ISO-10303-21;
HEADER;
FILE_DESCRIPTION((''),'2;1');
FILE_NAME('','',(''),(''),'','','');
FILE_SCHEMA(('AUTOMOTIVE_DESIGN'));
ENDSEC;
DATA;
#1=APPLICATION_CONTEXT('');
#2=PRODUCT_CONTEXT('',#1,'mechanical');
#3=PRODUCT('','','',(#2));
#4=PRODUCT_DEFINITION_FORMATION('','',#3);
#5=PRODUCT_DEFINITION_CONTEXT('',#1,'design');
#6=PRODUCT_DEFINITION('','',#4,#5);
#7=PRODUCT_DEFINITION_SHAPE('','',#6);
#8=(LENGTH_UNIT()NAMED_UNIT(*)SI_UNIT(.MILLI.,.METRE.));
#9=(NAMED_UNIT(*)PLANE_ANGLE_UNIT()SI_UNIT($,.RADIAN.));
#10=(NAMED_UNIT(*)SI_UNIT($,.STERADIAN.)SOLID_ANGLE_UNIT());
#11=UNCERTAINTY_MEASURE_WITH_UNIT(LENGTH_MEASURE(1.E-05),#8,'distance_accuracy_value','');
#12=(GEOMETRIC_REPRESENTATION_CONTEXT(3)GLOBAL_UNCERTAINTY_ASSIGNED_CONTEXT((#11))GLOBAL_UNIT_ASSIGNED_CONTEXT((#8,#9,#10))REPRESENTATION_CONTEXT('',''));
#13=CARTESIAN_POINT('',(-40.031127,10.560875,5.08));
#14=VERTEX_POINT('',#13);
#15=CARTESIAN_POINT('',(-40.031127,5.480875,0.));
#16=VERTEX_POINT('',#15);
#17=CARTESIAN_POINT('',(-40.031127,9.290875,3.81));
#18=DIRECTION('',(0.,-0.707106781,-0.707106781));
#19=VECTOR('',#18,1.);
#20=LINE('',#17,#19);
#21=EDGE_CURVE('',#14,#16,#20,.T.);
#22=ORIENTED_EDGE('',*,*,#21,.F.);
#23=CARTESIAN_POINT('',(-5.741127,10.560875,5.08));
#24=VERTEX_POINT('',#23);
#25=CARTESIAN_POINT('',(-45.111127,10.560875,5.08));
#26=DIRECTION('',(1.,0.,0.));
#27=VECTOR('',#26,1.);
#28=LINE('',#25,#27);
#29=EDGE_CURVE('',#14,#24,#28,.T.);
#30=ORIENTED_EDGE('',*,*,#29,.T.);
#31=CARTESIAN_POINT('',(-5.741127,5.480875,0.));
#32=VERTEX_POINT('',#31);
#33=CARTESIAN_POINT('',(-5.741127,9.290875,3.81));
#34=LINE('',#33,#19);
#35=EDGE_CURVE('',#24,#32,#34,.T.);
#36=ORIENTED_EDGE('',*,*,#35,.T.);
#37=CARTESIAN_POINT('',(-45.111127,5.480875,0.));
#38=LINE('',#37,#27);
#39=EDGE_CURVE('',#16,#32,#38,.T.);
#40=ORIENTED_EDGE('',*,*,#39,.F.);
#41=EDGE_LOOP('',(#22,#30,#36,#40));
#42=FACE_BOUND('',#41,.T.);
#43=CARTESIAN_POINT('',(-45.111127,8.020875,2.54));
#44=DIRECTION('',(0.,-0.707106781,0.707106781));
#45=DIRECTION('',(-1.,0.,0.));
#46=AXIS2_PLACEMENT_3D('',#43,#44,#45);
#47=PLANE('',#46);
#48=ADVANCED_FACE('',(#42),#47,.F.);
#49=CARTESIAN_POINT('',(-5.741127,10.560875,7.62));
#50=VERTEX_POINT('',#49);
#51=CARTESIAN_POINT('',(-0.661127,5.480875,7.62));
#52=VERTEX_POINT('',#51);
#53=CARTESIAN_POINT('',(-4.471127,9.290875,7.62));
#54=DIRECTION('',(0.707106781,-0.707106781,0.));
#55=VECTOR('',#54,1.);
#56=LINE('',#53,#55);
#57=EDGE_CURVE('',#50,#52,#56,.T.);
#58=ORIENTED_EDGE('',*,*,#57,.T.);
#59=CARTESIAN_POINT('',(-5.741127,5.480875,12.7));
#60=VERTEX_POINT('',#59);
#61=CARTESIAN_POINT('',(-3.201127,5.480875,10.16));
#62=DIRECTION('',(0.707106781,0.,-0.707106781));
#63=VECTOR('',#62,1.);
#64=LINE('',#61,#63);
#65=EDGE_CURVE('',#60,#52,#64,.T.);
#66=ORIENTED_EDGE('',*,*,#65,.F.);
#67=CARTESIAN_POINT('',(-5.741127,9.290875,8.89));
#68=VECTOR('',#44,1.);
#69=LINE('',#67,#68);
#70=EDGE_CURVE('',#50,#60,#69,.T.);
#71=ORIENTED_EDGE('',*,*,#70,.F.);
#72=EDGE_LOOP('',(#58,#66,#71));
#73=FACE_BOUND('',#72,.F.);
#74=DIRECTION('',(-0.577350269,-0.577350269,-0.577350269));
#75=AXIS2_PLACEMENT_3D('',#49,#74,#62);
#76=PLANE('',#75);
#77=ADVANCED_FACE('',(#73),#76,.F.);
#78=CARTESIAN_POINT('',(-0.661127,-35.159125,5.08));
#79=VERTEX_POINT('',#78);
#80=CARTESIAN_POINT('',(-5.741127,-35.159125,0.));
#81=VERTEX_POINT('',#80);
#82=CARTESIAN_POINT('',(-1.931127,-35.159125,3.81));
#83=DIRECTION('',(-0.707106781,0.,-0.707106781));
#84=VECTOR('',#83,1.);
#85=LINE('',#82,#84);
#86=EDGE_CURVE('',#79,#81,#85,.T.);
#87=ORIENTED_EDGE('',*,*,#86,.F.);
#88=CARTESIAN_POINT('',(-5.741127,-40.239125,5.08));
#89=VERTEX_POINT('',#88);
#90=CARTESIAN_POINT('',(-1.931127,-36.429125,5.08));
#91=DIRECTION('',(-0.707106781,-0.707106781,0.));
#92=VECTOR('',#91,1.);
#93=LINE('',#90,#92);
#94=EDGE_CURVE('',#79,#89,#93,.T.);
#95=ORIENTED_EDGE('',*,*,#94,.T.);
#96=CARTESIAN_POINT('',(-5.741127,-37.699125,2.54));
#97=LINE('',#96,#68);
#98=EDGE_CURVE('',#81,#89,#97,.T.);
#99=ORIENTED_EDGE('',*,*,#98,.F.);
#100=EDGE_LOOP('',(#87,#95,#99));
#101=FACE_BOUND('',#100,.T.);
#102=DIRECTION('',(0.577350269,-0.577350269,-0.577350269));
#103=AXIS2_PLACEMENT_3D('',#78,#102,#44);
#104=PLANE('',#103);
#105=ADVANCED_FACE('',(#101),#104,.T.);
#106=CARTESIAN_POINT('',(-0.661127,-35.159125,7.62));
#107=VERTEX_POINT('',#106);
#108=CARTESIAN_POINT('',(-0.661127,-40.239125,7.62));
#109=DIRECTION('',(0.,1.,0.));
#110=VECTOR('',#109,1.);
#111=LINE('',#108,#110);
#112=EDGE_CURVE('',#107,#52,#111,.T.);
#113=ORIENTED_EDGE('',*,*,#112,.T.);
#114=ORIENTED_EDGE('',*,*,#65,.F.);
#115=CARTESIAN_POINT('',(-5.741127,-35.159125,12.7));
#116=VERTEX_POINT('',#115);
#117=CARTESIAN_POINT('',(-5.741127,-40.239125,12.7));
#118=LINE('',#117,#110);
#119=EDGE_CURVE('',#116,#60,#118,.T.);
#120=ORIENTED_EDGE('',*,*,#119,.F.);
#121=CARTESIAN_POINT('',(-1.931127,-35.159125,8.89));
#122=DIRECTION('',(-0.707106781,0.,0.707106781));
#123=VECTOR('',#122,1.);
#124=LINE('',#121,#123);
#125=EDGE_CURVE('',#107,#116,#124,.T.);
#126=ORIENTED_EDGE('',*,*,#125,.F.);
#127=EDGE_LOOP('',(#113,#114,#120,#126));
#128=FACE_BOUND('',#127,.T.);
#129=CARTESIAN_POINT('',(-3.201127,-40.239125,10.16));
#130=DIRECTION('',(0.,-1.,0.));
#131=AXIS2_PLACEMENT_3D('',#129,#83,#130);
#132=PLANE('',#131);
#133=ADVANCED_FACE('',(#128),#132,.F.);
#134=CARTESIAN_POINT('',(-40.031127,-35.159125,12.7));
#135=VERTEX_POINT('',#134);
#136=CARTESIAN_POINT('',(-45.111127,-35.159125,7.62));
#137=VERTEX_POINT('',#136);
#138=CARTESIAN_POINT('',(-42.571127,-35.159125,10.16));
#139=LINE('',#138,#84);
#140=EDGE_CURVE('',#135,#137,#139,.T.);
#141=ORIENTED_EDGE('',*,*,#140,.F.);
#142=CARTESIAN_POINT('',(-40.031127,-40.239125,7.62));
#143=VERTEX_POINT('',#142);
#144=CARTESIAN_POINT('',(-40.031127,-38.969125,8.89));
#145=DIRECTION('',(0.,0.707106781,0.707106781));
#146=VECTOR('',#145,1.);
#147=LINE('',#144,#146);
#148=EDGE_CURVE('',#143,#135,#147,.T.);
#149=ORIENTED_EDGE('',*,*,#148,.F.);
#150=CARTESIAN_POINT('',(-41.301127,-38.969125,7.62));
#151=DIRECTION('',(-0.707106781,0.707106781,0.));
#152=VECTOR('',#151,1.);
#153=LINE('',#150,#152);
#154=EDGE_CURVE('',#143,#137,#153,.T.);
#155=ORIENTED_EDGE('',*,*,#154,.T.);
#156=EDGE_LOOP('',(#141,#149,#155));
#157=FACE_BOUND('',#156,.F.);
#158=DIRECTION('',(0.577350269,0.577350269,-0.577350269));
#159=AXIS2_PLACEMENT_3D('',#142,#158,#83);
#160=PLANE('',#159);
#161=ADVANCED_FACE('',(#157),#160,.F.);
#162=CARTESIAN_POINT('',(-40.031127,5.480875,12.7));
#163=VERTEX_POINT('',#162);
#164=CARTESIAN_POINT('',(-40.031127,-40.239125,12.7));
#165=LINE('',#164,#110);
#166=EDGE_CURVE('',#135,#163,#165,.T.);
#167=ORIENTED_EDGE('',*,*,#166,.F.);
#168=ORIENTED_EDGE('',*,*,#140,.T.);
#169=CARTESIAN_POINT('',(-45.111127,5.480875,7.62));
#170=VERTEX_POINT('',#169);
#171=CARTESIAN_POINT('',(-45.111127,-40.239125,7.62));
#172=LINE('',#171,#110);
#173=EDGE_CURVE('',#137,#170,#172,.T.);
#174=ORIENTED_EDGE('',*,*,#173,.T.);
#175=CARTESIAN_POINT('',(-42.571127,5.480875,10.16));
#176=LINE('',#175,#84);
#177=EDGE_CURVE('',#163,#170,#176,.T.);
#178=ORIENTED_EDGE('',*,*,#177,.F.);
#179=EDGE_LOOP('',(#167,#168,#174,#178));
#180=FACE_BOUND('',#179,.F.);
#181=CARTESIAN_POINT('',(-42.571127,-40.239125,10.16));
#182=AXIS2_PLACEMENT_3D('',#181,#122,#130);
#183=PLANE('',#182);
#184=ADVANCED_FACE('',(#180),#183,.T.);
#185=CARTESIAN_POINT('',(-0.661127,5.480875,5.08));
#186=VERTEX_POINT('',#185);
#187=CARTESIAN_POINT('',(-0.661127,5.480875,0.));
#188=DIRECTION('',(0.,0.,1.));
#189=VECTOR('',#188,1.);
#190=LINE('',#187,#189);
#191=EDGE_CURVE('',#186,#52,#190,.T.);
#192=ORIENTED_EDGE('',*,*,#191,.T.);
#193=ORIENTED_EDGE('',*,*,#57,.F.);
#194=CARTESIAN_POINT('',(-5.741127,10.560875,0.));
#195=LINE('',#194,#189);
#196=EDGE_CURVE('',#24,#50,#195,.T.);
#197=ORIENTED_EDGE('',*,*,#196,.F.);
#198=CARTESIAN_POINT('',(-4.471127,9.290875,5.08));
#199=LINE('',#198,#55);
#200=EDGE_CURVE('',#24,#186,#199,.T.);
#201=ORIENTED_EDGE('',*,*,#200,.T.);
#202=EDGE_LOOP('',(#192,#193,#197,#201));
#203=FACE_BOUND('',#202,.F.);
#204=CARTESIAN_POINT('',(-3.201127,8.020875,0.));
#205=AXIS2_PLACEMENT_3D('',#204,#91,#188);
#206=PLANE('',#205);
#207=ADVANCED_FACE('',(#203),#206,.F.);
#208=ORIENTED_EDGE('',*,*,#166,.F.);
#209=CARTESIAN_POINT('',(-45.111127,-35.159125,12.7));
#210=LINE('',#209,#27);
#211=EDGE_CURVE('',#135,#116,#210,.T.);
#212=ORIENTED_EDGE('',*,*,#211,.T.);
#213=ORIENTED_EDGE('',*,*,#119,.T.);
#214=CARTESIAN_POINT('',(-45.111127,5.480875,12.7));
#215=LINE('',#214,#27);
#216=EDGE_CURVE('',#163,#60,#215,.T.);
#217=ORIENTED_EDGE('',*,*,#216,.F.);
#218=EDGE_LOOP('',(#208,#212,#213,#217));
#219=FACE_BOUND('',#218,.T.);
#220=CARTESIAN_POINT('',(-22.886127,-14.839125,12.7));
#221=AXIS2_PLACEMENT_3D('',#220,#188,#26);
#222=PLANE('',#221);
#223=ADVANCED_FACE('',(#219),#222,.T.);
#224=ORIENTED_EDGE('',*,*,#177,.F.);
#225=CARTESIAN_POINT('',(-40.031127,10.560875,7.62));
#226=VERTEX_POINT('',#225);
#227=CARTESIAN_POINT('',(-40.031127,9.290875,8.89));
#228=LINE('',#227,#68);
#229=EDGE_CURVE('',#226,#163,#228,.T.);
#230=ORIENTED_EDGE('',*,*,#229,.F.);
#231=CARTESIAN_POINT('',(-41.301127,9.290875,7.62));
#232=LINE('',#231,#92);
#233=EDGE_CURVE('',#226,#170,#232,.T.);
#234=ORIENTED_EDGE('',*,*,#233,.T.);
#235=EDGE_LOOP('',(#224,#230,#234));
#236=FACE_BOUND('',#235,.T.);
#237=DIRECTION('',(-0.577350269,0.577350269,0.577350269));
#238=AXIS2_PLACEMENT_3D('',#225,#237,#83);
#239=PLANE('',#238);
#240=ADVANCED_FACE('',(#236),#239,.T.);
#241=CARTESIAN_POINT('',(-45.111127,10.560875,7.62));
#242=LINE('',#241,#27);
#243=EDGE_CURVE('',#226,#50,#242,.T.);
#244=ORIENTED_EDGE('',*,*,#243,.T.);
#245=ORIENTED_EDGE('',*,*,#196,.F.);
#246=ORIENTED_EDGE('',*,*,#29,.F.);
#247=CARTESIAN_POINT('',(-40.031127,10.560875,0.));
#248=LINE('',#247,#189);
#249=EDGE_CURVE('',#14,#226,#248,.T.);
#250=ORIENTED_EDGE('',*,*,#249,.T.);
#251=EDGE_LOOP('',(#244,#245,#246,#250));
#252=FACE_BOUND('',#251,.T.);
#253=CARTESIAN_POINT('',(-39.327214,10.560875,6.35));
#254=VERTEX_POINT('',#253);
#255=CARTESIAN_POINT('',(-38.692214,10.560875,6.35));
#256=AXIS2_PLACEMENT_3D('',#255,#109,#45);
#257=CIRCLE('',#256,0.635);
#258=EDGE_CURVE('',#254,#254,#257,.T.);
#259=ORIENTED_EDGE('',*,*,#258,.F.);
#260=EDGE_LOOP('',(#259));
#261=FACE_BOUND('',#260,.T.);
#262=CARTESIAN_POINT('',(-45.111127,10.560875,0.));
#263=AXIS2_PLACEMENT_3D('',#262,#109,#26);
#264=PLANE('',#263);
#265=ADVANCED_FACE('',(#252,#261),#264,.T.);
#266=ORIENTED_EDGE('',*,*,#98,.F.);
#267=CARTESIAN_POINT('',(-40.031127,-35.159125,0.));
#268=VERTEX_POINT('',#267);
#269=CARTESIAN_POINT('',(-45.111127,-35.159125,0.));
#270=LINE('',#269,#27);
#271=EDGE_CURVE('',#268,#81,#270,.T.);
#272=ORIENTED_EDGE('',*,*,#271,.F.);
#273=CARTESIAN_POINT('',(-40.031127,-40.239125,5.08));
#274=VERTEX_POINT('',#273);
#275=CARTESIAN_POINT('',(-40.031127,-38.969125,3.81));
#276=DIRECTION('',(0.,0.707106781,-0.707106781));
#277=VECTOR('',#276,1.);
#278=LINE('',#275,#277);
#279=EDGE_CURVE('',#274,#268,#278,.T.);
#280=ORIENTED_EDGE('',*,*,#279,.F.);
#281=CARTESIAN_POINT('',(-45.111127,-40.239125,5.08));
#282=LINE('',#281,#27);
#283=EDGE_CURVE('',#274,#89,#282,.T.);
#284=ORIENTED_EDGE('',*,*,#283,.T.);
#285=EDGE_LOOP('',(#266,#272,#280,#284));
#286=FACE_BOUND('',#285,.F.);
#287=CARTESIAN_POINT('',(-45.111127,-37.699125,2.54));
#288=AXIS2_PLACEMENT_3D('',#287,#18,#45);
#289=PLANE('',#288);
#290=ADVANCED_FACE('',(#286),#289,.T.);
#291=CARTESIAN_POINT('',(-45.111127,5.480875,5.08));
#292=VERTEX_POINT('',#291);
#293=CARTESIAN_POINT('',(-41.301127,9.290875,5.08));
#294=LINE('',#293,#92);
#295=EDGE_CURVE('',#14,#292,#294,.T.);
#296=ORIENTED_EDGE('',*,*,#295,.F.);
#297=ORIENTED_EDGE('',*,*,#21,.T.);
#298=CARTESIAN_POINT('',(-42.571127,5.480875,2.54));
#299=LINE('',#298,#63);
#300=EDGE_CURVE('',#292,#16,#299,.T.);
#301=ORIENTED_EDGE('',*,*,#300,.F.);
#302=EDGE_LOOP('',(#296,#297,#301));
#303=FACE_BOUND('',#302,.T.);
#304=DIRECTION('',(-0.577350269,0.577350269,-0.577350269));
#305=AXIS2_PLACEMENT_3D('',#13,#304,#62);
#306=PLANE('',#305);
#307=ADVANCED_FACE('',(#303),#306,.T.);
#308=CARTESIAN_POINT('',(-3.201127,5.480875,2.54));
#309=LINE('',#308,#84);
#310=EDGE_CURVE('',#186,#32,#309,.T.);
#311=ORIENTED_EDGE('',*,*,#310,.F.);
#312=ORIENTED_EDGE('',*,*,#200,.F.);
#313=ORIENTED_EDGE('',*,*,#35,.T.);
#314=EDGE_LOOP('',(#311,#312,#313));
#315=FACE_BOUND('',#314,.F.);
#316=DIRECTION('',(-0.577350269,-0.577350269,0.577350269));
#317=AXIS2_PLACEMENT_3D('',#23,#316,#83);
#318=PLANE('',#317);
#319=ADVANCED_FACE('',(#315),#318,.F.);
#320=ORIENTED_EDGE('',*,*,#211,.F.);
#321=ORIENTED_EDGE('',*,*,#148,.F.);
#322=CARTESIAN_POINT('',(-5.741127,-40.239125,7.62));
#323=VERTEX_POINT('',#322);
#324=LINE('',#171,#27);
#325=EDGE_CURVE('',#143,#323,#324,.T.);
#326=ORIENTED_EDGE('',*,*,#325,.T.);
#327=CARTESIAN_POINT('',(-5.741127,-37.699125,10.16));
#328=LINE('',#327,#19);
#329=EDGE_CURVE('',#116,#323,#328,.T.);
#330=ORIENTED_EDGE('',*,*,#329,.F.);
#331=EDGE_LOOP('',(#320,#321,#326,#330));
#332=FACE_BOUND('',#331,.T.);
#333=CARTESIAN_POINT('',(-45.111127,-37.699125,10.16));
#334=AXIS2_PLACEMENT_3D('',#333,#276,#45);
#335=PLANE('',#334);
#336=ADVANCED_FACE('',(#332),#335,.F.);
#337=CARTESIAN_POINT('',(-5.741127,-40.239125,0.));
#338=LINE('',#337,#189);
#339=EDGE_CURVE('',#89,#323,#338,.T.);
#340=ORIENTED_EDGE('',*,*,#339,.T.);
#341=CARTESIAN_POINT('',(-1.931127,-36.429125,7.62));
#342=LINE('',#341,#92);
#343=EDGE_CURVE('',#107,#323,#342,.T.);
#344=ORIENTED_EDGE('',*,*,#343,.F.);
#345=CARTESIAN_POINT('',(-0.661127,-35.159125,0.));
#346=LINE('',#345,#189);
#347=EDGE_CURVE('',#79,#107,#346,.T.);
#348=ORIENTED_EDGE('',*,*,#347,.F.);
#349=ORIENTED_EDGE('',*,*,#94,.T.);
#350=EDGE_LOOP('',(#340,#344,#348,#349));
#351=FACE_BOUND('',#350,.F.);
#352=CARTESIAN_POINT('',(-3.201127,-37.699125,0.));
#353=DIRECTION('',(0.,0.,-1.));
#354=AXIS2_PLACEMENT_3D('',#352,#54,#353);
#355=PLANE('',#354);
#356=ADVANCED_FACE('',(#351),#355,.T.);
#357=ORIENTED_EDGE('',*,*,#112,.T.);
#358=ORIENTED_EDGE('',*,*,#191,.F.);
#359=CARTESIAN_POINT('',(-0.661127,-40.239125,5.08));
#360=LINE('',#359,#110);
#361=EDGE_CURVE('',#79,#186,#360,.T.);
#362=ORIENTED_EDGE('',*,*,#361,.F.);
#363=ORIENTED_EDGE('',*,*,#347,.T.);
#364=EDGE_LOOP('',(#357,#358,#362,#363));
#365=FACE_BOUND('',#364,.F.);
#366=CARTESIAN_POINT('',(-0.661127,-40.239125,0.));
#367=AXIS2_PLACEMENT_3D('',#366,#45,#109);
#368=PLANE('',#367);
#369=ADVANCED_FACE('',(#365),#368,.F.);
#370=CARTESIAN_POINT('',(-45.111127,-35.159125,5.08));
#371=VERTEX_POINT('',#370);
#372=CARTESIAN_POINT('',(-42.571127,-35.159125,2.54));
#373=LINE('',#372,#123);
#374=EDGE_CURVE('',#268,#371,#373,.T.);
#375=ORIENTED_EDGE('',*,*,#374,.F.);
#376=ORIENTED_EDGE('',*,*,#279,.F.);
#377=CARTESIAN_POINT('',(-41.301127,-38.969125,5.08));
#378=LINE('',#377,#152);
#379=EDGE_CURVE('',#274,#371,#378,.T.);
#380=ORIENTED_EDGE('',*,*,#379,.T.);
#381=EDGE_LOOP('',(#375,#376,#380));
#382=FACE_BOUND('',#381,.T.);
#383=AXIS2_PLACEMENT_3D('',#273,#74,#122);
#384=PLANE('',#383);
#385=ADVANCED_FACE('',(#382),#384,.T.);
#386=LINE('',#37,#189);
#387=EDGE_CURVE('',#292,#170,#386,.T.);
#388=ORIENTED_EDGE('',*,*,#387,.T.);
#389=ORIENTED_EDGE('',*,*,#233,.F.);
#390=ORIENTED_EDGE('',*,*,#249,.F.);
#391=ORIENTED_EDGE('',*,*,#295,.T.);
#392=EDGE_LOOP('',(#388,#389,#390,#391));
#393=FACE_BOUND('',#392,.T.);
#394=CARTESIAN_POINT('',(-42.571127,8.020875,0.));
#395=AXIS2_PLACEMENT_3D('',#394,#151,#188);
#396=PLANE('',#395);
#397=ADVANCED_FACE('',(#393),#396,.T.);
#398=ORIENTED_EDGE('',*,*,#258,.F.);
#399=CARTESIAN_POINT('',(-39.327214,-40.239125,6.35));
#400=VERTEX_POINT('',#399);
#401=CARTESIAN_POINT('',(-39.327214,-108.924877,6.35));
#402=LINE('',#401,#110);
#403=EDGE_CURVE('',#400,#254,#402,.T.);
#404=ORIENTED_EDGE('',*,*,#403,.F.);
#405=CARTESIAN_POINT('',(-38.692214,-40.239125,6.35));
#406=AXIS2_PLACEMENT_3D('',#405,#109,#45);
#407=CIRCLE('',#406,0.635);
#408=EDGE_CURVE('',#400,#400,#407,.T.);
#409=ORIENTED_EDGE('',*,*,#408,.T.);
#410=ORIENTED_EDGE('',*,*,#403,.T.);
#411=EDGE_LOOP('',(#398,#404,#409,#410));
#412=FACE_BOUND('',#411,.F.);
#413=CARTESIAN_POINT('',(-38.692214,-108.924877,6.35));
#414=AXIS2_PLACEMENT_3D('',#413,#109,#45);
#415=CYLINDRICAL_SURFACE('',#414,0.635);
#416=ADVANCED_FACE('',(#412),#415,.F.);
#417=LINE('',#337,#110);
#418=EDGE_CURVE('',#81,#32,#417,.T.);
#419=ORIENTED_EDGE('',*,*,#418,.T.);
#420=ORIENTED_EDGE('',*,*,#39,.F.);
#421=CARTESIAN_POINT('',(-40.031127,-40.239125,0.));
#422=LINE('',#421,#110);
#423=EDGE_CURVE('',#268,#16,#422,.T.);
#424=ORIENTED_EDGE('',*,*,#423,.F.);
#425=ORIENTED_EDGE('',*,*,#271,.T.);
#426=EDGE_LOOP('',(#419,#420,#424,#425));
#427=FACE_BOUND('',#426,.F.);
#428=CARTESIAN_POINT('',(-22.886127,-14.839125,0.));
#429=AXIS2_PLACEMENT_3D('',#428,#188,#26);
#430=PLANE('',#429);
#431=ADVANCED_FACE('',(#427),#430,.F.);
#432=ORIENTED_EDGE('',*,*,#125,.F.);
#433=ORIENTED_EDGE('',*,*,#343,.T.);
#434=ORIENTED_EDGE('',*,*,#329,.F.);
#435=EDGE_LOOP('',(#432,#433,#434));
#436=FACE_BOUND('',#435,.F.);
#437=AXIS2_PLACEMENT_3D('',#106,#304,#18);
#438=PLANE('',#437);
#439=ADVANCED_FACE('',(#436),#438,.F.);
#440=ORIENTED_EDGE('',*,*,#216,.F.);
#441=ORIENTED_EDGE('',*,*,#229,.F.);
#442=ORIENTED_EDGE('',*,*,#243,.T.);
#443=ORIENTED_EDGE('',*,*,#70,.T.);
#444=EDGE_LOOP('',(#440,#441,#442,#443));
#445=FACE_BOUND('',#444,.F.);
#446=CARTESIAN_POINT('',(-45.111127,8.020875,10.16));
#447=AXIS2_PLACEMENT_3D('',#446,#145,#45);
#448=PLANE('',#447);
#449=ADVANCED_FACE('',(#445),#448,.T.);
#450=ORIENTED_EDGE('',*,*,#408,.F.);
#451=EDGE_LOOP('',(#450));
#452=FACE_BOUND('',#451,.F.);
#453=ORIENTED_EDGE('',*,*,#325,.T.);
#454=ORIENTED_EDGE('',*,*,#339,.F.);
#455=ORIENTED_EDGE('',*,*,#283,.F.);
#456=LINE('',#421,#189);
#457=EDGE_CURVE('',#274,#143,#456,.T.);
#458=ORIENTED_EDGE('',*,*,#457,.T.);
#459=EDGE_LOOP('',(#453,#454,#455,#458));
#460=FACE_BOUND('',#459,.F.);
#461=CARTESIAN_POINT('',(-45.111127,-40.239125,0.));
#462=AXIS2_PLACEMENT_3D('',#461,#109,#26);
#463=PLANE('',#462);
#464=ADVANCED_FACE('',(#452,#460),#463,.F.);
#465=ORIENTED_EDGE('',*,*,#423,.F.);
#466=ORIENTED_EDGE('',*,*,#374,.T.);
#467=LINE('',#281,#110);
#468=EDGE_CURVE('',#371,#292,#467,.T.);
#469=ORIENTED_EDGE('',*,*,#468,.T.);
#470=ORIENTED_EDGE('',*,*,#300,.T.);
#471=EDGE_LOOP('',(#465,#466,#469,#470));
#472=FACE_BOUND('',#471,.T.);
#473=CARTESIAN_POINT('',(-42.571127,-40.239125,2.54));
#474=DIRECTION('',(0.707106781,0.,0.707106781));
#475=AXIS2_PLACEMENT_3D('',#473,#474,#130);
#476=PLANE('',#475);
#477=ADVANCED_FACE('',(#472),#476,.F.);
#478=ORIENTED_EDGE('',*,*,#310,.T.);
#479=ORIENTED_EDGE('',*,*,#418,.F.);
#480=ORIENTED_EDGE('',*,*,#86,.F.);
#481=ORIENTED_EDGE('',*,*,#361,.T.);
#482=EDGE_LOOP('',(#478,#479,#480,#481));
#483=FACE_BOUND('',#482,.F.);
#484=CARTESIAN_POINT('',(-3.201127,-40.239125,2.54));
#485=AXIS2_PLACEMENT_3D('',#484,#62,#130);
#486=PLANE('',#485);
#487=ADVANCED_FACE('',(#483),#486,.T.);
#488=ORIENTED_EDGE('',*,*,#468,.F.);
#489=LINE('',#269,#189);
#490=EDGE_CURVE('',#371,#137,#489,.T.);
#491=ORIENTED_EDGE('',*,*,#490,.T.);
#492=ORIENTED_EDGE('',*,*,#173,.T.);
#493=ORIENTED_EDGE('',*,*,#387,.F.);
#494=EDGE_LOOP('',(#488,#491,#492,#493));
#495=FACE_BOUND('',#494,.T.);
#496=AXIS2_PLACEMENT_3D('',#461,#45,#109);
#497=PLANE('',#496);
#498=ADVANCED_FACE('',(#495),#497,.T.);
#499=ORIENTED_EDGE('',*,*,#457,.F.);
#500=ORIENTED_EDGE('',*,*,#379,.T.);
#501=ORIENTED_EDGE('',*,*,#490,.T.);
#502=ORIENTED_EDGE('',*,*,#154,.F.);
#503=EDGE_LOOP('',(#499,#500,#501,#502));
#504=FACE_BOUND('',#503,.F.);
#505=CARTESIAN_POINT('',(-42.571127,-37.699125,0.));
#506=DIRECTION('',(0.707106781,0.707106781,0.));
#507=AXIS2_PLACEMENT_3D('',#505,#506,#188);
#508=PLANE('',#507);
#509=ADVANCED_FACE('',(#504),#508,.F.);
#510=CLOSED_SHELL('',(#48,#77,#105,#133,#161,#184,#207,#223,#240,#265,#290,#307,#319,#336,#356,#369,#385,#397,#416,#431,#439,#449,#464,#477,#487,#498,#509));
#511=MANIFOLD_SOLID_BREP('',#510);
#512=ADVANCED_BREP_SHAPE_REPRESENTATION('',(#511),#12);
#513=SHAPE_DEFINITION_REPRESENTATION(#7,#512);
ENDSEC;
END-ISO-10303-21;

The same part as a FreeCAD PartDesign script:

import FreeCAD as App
import Part
import Sketcher
Q = App.Units.Quantity

doc = App.newDocument("Part")
body = doc.addObject("PartDesign::Body", "Body")

sketch1 = body.newObject("Sketcher::SketchObject", "Sketch")
sketch1.AttachmentSupport = (doc.getObject("XY_Plane"), [""])
sketch1.MapMode = "FlatFace"
sketch1.addGeometry([
    Part.LineSegment(App.Vector(-45.111127, 10.560875, 0), App.Vector(-45.111127, -40.239125, 0)),
    Part.LineSegment(App.Vector(-45.111127, -40.239125, 0), App.Vector(-0.661127, -40.239125, 0)),
    Part.LineSegment(App.Vector(-0.661127, -40.239125, 0), App.Vector(-0.661127, 10.560875, 0)),
    Part.LineSegment(App.Vector(-0.661127, 10.560875, 0), App.Vector(-45.111127, 10.560875, 0)),
], False)
sketch1.addConstraint([
    Sketcher.Constraint("Coincident", 0, 2, 1, 1),
    Sketcher.Constraint("Coincident", 1, 2, 2, 1),
    Sketcher.Constraint("Coincident", 2, 2, 3, 1),
    Sketcher.Constraint("Coincident", 3, 2, 0, 1),
    Sketcher.Constraint("Vertical", 0),
    Sketcher.Constraint("Horizontal", 1),
    Sketcher.Constraint("Vertical", 2),
    Sketcher.Constraint("Horizontal", 3),
    Sketcher.Constraint("DistanceY", 0, 2, 0, 1, Q("2 in")),
    Sketcher.Constraint("DistanceX", 1, 1, 1, 2, Q("1.75 in")),
    Sketcher.Constraint("DistanceX", 0, 2, -1, 1, Q("45.111127 mm")),
    Sketcher.Constraint("DistanceY", 0, 2, -1, 1, Q("40.239125 mm")),
])
pad1 = body.newObject("PartDesign::Pad", "Pad")
pad1.Profile = sketch1
pad1.Length = Q("0.5 in")
doc.recompute()

chamfer = body.newObject("PartDesign::Chamfer", "Chamfer")
chamfer.Base = (pad1, ["Edge1"])
chamfer.UseAllEdges = True
chamfer.Size = Q("0.2 in")

sketch2 = body.newObject("Sketcher::SketchObject", "Sketch001")
sketch2.AttachmentSupport = (doc.getObject("XZ_Plane"), [""])
sketch2.MapMode = "FlatFace"
sketch2.AttachmentOffset = App.Placement(App.Vector(0, 0, 40.239125), App.Rotation())
sketch2.addGeometry(Part.Circle(App.Vector(-38.692214, 6.35, 0), App.Vector(0, 0, 1), 0.635), False)
sketch2.addConstraint([
    Sketcher.Constraint("Diameter", 0, Q("0.05 in")),
    Sketcher.Constraint("DistanceY", -1, 1, 0, 3, Q("0.25 in")),
    Sketcher.Constraint("DistanceX", 0, 3, -1, 1, Q("38.692214 mm")),
])
doc.recompute()
hole = body.newObject("PartDesign::Hole", "Hole")
hole.Profile = sketch2
hole.ThreadType = "None"
hole.Diameter = Q("0.05 in")
hole.DepthType = "ThroughAll"

doc.recompute()
